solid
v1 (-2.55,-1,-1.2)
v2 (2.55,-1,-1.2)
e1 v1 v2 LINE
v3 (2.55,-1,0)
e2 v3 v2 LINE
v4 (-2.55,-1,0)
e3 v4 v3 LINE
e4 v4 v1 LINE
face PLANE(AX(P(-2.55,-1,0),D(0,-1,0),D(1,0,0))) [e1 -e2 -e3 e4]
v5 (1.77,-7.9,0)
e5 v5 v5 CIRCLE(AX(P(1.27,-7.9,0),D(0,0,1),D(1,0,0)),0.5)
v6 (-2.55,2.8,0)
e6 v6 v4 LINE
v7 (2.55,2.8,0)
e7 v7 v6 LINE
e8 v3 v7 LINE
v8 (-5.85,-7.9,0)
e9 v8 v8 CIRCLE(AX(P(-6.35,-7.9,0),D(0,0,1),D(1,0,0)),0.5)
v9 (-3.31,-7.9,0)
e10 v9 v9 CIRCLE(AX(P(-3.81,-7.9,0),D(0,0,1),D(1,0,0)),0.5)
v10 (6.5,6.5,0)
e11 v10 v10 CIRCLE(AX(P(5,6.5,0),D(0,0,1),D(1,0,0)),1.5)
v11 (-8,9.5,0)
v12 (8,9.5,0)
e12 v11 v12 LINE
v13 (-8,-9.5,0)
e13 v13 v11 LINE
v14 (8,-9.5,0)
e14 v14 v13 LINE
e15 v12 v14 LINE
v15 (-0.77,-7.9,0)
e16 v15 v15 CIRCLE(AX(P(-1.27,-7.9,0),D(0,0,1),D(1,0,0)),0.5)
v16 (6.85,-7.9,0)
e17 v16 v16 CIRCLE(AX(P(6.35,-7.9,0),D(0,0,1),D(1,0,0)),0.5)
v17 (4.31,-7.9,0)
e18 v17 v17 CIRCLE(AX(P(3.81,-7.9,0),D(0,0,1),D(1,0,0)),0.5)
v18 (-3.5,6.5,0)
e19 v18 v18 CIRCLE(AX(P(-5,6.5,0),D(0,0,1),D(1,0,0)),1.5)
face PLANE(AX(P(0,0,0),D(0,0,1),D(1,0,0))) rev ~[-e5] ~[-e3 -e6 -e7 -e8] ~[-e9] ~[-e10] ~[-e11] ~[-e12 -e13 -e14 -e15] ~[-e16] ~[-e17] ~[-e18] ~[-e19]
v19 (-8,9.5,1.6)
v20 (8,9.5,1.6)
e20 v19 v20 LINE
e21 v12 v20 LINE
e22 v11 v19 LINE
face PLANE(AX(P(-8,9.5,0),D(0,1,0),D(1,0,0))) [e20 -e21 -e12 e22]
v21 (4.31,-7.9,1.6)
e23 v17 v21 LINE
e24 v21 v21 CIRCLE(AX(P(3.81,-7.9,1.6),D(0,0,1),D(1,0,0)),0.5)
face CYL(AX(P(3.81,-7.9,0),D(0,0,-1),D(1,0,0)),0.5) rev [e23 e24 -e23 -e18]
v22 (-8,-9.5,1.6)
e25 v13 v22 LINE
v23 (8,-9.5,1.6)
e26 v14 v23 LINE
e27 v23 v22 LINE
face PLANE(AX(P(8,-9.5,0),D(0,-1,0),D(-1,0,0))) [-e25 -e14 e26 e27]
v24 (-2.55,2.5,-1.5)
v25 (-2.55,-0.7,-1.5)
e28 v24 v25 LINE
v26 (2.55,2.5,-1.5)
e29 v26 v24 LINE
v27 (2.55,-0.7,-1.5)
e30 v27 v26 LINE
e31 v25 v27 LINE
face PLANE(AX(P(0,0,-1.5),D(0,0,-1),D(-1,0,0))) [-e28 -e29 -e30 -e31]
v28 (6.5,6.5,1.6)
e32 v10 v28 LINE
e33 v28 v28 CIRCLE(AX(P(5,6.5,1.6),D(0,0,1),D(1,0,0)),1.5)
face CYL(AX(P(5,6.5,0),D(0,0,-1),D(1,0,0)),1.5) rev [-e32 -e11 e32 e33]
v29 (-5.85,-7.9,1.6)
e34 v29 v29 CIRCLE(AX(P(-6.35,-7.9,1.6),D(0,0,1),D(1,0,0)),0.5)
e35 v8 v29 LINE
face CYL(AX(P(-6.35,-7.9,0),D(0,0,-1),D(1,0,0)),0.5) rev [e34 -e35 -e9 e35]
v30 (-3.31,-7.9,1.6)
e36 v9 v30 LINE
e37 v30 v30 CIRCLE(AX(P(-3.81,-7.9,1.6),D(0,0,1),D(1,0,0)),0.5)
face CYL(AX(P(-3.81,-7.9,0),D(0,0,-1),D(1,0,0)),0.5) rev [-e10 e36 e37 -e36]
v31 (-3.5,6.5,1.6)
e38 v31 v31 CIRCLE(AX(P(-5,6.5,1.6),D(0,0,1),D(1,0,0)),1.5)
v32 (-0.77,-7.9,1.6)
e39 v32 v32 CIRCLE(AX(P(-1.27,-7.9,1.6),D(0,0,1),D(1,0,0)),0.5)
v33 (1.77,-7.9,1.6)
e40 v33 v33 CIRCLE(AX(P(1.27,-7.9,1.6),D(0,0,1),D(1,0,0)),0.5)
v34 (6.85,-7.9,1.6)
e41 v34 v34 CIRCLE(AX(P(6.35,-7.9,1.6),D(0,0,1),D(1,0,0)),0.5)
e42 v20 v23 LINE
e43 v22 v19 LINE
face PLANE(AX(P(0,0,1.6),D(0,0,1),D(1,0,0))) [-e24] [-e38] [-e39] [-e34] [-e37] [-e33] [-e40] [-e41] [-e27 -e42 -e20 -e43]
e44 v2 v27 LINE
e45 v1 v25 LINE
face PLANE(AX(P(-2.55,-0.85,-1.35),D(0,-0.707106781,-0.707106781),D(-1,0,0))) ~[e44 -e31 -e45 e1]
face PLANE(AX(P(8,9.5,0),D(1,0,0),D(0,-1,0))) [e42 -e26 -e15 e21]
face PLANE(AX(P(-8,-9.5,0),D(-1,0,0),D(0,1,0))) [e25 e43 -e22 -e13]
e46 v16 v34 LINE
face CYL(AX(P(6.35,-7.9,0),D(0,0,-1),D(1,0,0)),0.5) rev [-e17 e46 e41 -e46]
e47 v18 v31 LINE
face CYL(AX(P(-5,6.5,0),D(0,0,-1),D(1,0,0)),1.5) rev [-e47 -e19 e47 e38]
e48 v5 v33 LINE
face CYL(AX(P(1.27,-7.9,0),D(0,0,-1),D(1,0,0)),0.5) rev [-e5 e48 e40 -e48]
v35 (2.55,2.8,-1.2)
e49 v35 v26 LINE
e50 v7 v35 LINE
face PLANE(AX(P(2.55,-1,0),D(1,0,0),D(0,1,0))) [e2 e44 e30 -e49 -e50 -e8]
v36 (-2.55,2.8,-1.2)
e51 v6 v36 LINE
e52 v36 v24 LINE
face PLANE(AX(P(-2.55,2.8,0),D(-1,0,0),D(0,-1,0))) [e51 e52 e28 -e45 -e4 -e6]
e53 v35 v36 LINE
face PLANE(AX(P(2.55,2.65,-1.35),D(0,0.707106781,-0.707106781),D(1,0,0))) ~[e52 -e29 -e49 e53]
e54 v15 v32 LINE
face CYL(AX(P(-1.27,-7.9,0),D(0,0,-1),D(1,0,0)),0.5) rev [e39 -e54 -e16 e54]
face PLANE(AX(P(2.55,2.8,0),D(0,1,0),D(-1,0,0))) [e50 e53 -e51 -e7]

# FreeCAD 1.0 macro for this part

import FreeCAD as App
import Part
import Sketcher
from FreeCAD import Vector
Q = App.Units.Quantity


def edges_at(feature, points):
    """Names of the edges that pass closest to the given points."""
    edges = feature.Shape.Edges
    near = lambda p: min(range(len(edges)), key=lambda i: edges[i].distToShape(Part.Vertex(*p))[0])
    return sorted({f"Edge{near(p) + 1}" for p in points})


def add_polygon(sketch, points):
    """Adds a closed chain of lines whose ends are joined by coincident constraints."""
    first, n = sketch.GeometryCount, len(points)
    for a, b in zip(points, points[1:] + points[:1]):
        sketch.addGeometry(Part.LineSegment(App.Vector(*a, 0), App.Vector(*b, 0)), False)
    for i in range(n):
        sketch.addConstraint(Sketcher.Constraint("Coincident", first + i, 2, first + (i + 1) % n, 1))

doc = App.newDocument("Part")
body = doc.addObject("PartDesign::Body", "Body")

sketch1 = body.newObject("Sketcher::SketchObject", "Sketch")
sketch1.AttachmentSupport = (doc.getObject("XY_Plane"), [""])
sketch1.MapMode = "FlatFace"
add_polygon(sketch1, [(-8, -9.5), (8, -9.5), (8, 9.5), (-8, 9.5)])
sketch1.addGeometry(Part.Circle(Vector(-6.3, -7.9, 0), Vector(0, 0, 1), 0.5), False)
sketch1.addGeometry(Part.Circle(Vector(-3.8, -7.9, 0), Vector(0, 0, 1), 0.5), False)
sketch1.addGeometry(Part.Circle(Vector(-1.3, -7.9, 0), Vector(0, 0, 1), 0.5), False)
sketch1.addGeometry(Part.Circle(Vector(1.3, -7.9, 0), Vector(0, 0, 1), 0.5), False)
sketch1.addGeometry(Part.Circle(Vector(3.8, -7.9, 0), Vector(0, 0, 1), 0.5), False)
sketch1.addGeometry(Part.Circle(Vector(6.3, -7.9, 0), Vector(0, 0, 1), 0.5), False)
sketch1.addGeometry(Part.Circle(Vector(-5, 6.5, 0), Vector(0, 0, 1), 1.5), False)
sketch1.addGeometry(Part.Circle(Vector(5, 6.5, 0), Vector(0, 0, 1), 1.5), False)
sketch1.addConstraint([
    Sketcher.Constraint("Horizontal", 0),
    Sketcher.Constraint("Vertical", 1),
    Sketcher.Constraint("Horizontal", 2),
    Sketcher.Constraint("Vertical", 3),
    Sketcher.Constraint("Equal", 4, 5),
    Sketcher.Constraint("Equal", 5, 6),
    Sketcher.Constraint("Equal", 6, 7),
    Sketcher.Constraint("Equal", 7, 8),
    Sketcher.Constraint("Equal", 8, 9),
    Sketcher.Constraint("Equal", 10, 11),
    Sketcher.Constraint("Symmetric", 0, 2, 2, 2, -1, 1),
    Sketcher.Constraint("Symmetric", 6, 3, 7, 3, -2),
    Sketcher.Constraint("Symmetric", 5, 3, 8, 3, -2),
    Sketcher.Constraint("Symmetric", 4, 3, 9, 3, -2),
    Sketcher.Constraint("Symmetric", 10, 3, 11, 3, -2),
    Sketcher.Constraint("Horizontal", 4, 3, 5, 3),
    Sketcher.Constraint("Horizontal", 5, 3, 6, 3),
    Sketcher.Constraint("Diameter", 4, Q("1 mm")),
    Sketcher.Constraint("Diameter", 10, Q("3 mm")),
    Sketcher.Constraint("DistanceX", 0, 1, 0, 2, Q("16 mm")),
    Sketcher.Constraint("DistanceY", 1, 1, 1, 2, Q("19 mm")),
    Sketcher.Constraint("DistanceX", 10, 3, 11, 3, Q("10 mm")),
    Sketcher.Constraint("DistanceY", 11, 3, 1, 2, Q("3 mm")),
    Sketcher.Constraint("DistanceY", 0, 2, 9, 3, Q("1.6 mm")),
    Sketcher.Constraint("DistanceX", 4, 3, 5, 3, Q("2.54 mm")),
    Sketcher.Constraint("DistanceX", 5, 3, 6, 3, Q("2.54 mm")),
    Sketcher.Constraint("DistanceX", 6, 3, 7, 3, Q("2.54 mm")),
])
pad1 = body.newObject("PartDesign::Pad", "Pad")
pad1.Profile = sketch1
pad1.Length = 1.6

sketch2 = body.newObject("Sketcher::SketchObject", "Sketch001")
sketch2.AttachmentSupport = (doc.getObject("XY_Plane"), [""])
sketch2.MapMode = "FlatFace"
add_polygon(sketch2, [(2.5, -1), (-2.5, -1), (-2.5, 2.8), (2.5, 2.8)])
sketch2.addConstraint([
    Sketcher.Constraint("Horizontal", 0),
    Sketcher.Constraint("Vertical", 1),
    Sketcher.Constraint("Horizontal", 2),
    Sketcher.Constraint("Vertical", 3),
    Sketcher.Constraint("DistanceX", 0, 2, 0, 1, Q("5.1 mm")),
    Sketcher.Constraint("DistanceY", 1, 1, 1, 2, Q("3.8 mm")),
    Sketcher.Constraint("DistanceY", 0, 2, -1, 1, Q("1 mm")),
    Sketcher.Constraint("DistanceX", 0, 2, -1, 1, Q("2.55 mm")),
])
pad2 = body.newObject("PartDesign::Pad", "Pad001")
pad2.Profile = sketch2
pad2.Length = 1.5
pad2.Reversed = True
doc.recompute()

chamfer = body.newObject("PartDesign::Chamfer", "Chamfer")
chamfer.Base = (pad2, edges_at(pad2, [(0, -1, -1.5), (0, 2.8, -1.5)]))
chamfer.Size = 0.3

doc.recompute()
